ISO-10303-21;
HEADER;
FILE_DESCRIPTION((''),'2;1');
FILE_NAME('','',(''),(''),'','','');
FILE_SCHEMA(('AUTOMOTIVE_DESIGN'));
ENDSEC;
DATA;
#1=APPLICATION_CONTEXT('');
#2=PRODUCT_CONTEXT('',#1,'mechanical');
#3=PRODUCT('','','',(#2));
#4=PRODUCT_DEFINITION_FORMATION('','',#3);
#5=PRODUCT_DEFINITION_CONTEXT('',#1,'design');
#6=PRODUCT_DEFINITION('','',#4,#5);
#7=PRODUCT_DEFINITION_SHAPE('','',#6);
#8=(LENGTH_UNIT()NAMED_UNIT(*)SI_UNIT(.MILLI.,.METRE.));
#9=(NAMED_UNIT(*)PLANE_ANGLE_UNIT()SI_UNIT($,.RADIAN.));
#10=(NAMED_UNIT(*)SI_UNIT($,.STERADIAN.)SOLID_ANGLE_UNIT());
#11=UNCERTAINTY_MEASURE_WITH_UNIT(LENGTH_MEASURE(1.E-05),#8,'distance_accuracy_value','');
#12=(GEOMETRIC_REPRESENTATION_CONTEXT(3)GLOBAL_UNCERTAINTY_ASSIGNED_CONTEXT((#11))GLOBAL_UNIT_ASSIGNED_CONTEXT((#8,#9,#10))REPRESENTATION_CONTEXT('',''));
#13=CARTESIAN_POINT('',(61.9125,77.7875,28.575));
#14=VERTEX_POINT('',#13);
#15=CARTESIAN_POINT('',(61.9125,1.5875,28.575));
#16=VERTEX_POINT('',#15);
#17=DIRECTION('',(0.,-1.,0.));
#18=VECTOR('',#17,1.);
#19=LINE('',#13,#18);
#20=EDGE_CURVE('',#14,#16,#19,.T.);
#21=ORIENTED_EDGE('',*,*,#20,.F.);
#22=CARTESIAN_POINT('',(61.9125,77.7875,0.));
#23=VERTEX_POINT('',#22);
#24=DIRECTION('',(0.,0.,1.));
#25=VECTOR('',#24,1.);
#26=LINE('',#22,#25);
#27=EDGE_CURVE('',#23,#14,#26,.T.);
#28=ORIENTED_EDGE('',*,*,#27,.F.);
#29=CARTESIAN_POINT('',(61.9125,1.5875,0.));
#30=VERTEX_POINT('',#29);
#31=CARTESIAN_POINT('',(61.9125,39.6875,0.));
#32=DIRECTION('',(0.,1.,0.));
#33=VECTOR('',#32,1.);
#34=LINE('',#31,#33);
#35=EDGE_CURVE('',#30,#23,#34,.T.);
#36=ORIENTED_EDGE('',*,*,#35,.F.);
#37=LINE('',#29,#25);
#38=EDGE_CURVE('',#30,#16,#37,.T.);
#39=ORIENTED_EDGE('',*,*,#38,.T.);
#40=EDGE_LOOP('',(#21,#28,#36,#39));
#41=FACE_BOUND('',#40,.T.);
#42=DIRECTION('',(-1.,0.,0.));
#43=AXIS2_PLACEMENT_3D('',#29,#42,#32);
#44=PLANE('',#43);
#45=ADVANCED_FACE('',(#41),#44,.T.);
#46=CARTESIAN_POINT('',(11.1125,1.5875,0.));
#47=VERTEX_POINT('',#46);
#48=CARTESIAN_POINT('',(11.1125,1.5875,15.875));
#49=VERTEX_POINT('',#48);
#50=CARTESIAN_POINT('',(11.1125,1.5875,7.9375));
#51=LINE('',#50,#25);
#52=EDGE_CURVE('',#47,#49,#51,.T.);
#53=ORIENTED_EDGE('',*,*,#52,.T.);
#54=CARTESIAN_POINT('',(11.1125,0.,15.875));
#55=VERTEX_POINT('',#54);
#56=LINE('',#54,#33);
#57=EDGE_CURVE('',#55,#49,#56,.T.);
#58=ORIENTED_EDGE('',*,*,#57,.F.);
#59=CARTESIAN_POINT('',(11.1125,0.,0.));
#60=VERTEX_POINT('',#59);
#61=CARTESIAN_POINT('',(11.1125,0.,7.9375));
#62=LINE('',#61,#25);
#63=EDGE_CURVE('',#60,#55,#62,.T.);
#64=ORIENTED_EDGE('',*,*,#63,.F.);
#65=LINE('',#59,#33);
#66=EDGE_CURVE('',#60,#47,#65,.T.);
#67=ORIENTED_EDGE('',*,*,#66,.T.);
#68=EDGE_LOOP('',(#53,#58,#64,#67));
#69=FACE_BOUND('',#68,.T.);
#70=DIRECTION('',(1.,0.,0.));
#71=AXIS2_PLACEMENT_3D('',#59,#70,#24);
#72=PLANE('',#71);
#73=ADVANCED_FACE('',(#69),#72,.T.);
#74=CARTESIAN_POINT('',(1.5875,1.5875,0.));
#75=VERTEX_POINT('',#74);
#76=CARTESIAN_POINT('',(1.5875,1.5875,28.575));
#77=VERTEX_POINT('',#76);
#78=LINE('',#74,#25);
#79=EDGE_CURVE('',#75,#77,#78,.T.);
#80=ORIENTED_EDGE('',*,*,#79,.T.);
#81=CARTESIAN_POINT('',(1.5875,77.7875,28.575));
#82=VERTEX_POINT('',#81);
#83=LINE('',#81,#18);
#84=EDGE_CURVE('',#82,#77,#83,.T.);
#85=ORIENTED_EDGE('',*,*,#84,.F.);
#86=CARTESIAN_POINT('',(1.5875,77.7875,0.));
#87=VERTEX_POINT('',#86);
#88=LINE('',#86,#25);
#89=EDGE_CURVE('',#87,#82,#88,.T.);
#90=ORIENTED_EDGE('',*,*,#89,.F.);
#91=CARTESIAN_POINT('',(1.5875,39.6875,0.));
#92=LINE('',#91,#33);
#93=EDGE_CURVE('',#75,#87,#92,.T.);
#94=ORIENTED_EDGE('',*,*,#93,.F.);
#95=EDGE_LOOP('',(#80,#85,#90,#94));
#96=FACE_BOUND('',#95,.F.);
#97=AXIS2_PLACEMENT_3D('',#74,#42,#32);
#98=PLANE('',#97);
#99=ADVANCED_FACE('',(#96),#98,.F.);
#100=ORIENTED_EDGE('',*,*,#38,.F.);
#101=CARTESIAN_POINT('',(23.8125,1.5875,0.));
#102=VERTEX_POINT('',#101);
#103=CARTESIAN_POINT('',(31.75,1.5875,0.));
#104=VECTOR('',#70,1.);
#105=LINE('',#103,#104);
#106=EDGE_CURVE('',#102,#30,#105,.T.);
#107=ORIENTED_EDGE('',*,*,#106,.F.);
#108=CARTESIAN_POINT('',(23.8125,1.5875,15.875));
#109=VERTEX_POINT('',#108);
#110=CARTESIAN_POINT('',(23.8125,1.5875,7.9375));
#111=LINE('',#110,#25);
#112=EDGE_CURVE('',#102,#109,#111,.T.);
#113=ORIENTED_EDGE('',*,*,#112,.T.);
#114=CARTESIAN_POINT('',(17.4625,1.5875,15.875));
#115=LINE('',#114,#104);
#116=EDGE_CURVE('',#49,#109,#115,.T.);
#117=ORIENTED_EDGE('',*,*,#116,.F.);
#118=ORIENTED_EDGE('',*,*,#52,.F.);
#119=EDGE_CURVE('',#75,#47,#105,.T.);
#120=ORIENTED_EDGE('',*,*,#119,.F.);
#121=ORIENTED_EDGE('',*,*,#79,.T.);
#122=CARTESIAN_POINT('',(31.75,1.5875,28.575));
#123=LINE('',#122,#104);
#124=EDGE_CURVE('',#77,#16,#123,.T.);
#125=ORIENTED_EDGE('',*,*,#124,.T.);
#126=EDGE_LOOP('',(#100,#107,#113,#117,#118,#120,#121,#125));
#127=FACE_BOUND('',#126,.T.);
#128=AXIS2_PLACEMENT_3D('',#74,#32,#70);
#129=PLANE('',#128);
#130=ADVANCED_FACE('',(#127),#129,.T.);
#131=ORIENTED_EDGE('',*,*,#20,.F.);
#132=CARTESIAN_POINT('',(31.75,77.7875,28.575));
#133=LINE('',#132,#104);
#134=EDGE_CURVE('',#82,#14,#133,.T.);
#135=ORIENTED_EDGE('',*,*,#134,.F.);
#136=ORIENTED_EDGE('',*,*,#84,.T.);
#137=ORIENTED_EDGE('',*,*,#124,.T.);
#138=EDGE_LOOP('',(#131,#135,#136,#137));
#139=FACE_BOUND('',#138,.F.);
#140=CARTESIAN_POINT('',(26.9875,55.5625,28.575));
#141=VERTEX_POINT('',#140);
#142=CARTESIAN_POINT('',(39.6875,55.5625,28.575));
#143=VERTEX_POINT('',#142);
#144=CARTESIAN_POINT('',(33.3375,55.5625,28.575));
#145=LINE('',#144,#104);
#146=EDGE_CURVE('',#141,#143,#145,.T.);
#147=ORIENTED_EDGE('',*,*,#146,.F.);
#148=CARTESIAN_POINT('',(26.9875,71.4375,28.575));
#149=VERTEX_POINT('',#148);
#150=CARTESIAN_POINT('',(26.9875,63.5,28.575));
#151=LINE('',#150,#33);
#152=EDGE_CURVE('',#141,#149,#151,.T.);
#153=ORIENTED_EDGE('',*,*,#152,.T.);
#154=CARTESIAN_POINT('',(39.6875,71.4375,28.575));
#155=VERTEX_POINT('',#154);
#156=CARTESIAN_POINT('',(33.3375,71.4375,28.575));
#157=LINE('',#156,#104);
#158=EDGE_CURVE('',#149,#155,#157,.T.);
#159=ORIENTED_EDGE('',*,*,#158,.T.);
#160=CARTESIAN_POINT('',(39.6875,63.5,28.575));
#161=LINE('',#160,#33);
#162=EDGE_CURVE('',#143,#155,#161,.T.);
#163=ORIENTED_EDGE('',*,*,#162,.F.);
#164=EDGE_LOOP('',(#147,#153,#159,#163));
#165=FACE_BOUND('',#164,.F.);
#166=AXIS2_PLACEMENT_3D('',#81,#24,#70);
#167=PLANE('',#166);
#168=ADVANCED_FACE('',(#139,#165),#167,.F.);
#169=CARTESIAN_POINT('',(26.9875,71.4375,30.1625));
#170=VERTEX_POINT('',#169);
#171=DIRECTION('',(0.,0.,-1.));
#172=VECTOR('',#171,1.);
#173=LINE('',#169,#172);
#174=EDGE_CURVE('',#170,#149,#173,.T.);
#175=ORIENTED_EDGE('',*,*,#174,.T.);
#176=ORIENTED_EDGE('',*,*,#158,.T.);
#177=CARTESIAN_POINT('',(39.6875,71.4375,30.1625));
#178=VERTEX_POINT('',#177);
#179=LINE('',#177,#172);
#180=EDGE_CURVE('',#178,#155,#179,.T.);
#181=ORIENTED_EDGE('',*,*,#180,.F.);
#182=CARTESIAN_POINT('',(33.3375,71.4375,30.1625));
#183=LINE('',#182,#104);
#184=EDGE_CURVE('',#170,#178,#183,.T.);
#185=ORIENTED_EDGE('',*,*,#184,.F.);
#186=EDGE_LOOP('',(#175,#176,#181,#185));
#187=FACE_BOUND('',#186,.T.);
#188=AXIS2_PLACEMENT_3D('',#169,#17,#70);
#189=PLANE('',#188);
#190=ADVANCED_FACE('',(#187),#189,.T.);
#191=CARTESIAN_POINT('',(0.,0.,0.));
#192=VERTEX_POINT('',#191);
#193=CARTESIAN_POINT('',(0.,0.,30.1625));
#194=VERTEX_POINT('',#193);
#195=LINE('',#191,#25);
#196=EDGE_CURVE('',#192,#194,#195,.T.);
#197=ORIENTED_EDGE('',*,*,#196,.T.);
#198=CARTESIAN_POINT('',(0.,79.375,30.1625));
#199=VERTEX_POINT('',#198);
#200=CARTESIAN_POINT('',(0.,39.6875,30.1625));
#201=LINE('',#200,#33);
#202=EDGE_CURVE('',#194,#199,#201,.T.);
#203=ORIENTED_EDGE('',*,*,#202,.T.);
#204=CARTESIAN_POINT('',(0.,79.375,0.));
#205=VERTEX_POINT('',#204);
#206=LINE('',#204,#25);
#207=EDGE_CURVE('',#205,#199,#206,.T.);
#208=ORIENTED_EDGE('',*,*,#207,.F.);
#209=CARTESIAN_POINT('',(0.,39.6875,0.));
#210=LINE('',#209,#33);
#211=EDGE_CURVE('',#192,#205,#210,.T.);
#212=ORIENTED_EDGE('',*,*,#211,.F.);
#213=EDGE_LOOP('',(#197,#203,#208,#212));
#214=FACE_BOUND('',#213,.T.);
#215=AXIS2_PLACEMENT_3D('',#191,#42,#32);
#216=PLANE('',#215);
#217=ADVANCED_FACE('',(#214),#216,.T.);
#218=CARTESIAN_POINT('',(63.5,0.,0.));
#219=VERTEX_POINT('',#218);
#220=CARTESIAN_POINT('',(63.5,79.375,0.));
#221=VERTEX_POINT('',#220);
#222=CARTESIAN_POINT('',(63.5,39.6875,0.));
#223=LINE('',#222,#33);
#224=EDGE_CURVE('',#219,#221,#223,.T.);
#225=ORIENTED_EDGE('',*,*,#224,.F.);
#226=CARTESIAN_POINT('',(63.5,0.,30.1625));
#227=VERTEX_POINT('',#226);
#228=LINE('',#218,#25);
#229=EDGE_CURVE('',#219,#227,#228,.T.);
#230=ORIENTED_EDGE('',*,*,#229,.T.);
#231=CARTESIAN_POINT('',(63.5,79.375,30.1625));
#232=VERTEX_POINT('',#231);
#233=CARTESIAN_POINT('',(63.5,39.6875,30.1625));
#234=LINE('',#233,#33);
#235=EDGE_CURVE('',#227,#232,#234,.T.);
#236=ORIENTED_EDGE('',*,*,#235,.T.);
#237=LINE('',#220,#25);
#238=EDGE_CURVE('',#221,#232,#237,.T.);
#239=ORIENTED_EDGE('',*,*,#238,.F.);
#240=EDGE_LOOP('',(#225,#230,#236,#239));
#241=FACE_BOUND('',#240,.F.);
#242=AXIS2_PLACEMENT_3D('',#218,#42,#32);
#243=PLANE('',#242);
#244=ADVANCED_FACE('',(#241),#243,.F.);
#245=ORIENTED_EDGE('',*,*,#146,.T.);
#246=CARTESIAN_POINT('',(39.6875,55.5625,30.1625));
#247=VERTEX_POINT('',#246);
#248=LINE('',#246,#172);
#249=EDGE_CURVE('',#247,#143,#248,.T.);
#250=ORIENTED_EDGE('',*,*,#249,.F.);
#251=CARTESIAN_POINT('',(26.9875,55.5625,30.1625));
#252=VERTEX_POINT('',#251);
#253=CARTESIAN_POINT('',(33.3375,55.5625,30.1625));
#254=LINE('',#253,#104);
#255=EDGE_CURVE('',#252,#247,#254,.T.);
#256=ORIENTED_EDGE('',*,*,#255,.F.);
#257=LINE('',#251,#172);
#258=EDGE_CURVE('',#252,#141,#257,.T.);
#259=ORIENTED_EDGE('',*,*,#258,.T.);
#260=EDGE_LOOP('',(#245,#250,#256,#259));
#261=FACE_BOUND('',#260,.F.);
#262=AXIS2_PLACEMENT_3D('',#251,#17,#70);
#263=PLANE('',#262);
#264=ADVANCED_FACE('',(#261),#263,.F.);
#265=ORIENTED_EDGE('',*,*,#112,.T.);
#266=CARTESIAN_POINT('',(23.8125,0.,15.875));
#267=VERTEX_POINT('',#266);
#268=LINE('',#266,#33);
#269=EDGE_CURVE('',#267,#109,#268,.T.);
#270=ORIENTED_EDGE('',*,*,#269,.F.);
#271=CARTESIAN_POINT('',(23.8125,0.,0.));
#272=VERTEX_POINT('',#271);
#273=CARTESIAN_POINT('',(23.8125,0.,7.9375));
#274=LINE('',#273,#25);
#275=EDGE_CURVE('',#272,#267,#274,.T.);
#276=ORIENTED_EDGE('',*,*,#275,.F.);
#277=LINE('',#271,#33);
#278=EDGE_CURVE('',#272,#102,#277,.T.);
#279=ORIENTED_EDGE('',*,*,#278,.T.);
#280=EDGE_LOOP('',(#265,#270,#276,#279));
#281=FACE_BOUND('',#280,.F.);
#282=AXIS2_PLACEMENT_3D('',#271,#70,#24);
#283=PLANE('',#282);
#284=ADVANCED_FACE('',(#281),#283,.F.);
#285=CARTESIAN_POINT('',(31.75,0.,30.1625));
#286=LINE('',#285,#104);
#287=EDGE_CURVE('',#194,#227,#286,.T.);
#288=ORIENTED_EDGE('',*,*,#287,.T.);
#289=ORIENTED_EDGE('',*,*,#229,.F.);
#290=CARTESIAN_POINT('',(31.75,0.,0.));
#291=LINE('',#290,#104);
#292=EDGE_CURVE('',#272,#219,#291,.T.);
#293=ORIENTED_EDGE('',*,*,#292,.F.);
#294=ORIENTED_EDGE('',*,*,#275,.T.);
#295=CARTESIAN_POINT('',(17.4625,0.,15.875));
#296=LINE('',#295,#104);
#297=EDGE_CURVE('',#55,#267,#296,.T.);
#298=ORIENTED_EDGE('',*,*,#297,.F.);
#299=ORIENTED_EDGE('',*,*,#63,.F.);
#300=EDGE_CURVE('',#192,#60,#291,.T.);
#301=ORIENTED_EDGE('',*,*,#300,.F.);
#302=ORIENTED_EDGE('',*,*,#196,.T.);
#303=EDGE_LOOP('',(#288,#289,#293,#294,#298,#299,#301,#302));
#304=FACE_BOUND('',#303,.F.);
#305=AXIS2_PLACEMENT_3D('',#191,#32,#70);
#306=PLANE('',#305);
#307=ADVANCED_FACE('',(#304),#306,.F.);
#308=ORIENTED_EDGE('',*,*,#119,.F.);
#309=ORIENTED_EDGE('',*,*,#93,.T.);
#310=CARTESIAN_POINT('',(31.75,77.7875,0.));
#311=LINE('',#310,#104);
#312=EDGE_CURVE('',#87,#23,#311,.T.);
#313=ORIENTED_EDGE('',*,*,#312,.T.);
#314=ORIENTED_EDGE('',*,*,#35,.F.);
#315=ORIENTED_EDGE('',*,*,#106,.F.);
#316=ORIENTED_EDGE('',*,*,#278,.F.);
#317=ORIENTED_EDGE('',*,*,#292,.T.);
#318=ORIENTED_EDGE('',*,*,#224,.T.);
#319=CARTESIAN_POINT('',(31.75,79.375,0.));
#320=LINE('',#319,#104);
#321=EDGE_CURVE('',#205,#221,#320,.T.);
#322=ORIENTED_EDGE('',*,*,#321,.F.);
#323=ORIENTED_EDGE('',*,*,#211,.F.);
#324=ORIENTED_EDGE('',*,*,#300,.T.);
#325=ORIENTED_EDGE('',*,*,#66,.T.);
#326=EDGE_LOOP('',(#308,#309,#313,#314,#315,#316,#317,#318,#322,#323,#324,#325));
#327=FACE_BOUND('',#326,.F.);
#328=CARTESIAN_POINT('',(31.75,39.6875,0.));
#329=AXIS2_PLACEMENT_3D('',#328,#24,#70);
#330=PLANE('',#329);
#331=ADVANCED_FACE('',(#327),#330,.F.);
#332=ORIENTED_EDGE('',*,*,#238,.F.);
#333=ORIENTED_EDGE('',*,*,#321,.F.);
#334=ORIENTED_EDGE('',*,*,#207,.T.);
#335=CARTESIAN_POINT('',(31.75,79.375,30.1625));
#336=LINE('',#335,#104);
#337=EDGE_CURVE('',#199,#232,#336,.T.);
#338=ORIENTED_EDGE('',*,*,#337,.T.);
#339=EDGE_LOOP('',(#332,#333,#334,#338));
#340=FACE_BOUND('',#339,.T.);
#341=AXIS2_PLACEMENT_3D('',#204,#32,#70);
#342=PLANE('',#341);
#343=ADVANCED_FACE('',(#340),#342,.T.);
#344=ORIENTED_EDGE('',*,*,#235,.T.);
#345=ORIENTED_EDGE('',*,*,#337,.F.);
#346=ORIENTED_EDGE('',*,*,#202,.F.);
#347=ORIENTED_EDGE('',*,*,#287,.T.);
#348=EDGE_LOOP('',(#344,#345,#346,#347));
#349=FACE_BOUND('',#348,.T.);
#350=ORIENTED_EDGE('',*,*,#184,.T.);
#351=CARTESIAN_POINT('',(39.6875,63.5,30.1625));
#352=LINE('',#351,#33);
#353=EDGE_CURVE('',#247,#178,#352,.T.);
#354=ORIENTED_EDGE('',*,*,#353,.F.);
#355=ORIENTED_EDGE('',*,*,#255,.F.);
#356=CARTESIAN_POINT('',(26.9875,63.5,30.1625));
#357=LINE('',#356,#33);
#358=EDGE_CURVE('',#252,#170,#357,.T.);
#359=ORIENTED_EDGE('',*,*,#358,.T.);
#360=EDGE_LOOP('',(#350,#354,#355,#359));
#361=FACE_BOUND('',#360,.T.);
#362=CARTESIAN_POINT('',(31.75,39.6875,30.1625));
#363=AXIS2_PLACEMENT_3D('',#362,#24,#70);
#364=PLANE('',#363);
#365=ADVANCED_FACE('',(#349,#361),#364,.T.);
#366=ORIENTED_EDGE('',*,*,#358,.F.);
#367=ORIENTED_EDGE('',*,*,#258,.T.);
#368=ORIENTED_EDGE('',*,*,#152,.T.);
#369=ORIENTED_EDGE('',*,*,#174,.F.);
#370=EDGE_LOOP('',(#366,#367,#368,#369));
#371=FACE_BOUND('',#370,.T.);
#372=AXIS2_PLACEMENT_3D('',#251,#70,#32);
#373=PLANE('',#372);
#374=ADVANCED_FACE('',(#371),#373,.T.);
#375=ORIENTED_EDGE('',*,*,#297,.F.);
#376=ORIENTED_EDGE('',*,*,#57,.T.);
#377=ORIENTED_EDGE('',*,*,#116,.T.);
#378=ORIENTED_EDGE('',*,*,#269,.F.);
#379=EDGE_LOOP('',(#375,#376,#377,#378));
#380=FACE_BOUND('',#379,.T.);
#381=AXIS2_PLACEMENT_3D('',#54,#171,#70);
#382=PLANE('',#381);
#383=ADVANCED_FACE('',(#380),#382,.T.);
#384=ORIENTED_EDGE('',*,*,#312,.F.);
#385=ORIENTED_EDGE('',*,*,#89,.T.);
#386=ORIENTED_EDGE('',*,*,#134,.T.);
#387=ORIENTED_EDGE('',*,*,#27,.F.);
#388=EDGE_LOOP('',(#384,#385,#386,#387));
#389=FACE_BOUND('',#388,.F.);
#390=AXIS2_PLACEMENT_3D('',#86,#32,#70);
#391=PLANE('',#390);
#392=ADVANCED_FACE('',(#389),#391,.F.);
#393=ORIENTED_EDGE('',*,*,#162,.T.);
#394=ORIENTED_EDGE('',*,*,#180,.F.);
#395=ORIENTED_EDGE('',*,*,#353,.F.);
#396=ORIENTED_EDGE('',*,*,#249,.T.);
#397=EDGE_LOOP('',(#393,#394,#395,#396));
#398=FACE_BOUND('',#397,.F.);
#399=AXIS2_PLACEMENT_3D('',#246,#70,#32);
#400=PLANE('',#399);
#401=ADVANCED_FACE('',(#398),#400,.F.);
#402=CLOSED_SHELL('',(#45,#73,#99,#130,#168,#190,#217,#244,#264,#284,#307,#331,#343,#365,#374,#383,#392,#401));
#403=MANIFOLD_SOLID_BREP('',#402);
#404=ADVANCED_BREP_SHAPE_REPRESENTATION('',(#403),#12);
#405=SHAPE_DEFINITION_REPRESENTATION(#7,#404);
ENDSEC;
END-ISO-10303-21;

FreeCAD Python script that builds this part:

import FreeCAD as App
import Part
import Sketcher

V = App.Vector
Q = App.Units.Quantity


def add_polygon(sketch, points):
    """Adds a closed chain of lines whose ends are joined by coincident constraints."""
    first, n = sketch.GeometryCount, len(points)
    for a, b in zip(points, points[1:] + points[:1]):
        sketch.addGeometry(Part.LineSegment(App.Vector(*a, 0), App.Vector(*b, 0)), False)
    for i in range(n):
        sketch.addConstraint(Sketcher.Constraint("Coincident", first + i, 2, first + (i + 1) % n, 1))

doc = App.newDocument("Part")
body = doc.addObject("PartDesign::Body", "Body")

sketch1 = body.newObject("Sketcher::SketchObject", "Sketch")
sketch1.AttachmentSupport = (doc.getObject("XY_Plane"), [""])
sketch1.MapMode = "FlatFace"
add_polygon(sketch1, [(0, 79), (0, 0), (64, 0), (64, 79)])
add_polygon(sketch1, [(62, 2), (2, 2), (2, 78), (62, 78)])
sketch1.addConstraint(Sketcher.Constraint("Vertical", 0))
sketch1.addConstraint(Sketcher.Constraint("Horizontal", 1))
sketch1.addConstraint(Sketcher.Constraint("Vertical", 2))
sketch1.addConstraint(Sketcher.Constraint("Horizontal", 3))
sketch1.addConstraint(Sketcher.Constraint("Horizontal", 4))
sketch1.addConstraint(Sketcher.Constraint("Vertical", 5))
sketch1.addConstraint(Sketcher.Constraint("Horizontal", 6))
sketch1.addConstraint(Sketcher.Constraint("Vertical", 7))
sketch1.addConstraint(Sketcher.Constraint("Coincident", 0, 2, -1, 1))
sketch1.addConstraint(Sketcher.Constraint("DistanceY", 5, 1, 5, 2, Q("3 in")))
sketch1.addConstraint(Sketcher.Constraint("DistanceX", 1, 1, 1, 2, Q("2.5 in")))
sketch1.addConstraint(Sketcher.Constraint("DistanceX", 4, 2, 4, 1, Q("2.375 in")))
sketch1.addConstraint(Sketcher.Constraint("DistanceY", 0, 2, 0, 1, Q("3.125 in")))
sketch1.addConstraint(Sketcher.Constraint("DistanceX", -1, 1, 4, 2, Q("0.0625 in")))
sketch1.addConstraint(Sketcher.Constraint("DistanceY", -1, 1, 4, 2, Q("0.0625 in")))
pad1 = body.newObject("PartDesign::Pad", "Pad")
pad1.Profile = sketch1
pad1.Length = Q("1.1875 in")

sketch2 = body.newObject("Sketcher::SketchObject", "Sketch001")
sketch2.AttachmentSupport = (doc.getObject("XZ_Plane"), [""])
sketch2.MapMode = "FlatFace"
sketch2.AttachmentOffset = App.Placement(V(0, 0, -3.0625 * 25.4), App.Rotation())
add_polygon(sketch2, [(1.6, 30.2), (1.6, 28.6), (61.9, 28.6), (61.9, 30.2)])
sketch2.addConstraint(Sketcher.Constraint("Vertical", 0))
sketch2.addConstraint(Sketcher.Constraint("Horizontal", 1))
sketch2.addConstraint(Sketcher.Constraint("Vertical", 2))
sketch2.addConstraint(Sketcher.Constraint("Horizontal", 3))
sketch2.addConstraint(Sketcher.Constraint("DistanceX", 1, 1, 1, 2, Q("2.375 in")))
sketch2.addConstraint(Sketcher.Constraint("DistanceY", 0, 2, 0, 1, Q("0.0625 in")))
sketch2.addConstraint(Sketcher.Constraint("DistanceX", -1, 1, 0, 2, Q("0.0625 in")))
sketch2.addConstraint(Sketcher.Constraint("DistanceY", -1, 1, 0, 2, Q("1.125 in")))
pad2 = body.newObject("PartDesign::Pad", "Pad001")
pad2.Profile = sketch2
pad2.Length = Q("3 in")

sketch3 = body.newObject("Sketcher::SketchObject", "Sketch002")
sketch3.AttachmentSupport = (doc.getObject("XY_Plane"), [""])
sketch3.MapMode = "FlatFace"
sketch3.AttachmentOffset = App.Placement(V(0, 0, 1.1875 * 25.4), App.Rotation())
add_polygon(sketch3, [(27, 71), (27, 56), (40, 56), (40, 71)])
sketch3.addConstraint(Sketcher.Constraint("Vertical", 0))
sketch3.addConstraint(Sketcher.Constraint("Horizontal", 1))
sketch3.addConstraint(Sketcher.Constraint("Vertical", 2))
sketch3.addConstraint(Sketcher.Constraint("Horizontal", 3))
sketch3.addConstraint(Sketcher.Constraint("DistanceX", 1, 1, 1, 2, Q("0.5 in")))
sketch3.addConstraint(Sketcher.Constraint("DistanceY", 0, 2, 0, 1, Q("0.625 in")))
sketch3.addConstraint(Sketcher.Constraint("DistanceX", -1, 1, 0, 2, Q("1.0625 in")))
sketch3.addConstraint(Sketcher.Constraint("DistanceY", -1, 1, 0, 2, Q("2.1875 in")))
pocket1 = body.newObject("PartDesign::Pocket", "Pocket")
pocket1.Profile = sketch3
pocket1.Length = Q("0.0625 in")

sketch4 = body.newObject("Sketcher::SketchObject", "Sketch003")
sketch4.AttachmentSupport = (doc.getObject("XZ_Plane"), [""])
sketch4.MapMode = "FlatFace"
add_polygon(sketch4, [(11, 16), (11, 0), (24, 0), (24, 16)])
sketch4.addConstraint(Sketcher.Constraint("Vertical", 0))
sketch4.addConstraint(Sketcher.Constraint("Horizontal", 1))
sketch4.addConstraint(Sketcher.Constraint("Vertical", 2))
sketch4.addConstraint(Sketcher.Constraint("Horizontal", 3))
sketch4.addConstraint(Sketcher.Constraint("PointOnObject", 0, 2, -1))
sketch4.addConstraint(Sketcher.Constraint("DistanceX", 1, 1, 1, 2, Q("0.5 in")))
sketch4.addConstraint(Sketcher.Constraint("DistanceY", 0, 2, 0, 1, Q("0.625 in")))
sketch4.addConstraint(Sketcher.Constraint("DistanceX", -1, 1, 0, 2, Q("0.4375 in")))
pocket2 = body.newObject("PartDesign::Pocket", "Pocket001")
pocket2.Profile = sketch4
pocket2.Length = Q("0.0625 in")

doc.recompute()
